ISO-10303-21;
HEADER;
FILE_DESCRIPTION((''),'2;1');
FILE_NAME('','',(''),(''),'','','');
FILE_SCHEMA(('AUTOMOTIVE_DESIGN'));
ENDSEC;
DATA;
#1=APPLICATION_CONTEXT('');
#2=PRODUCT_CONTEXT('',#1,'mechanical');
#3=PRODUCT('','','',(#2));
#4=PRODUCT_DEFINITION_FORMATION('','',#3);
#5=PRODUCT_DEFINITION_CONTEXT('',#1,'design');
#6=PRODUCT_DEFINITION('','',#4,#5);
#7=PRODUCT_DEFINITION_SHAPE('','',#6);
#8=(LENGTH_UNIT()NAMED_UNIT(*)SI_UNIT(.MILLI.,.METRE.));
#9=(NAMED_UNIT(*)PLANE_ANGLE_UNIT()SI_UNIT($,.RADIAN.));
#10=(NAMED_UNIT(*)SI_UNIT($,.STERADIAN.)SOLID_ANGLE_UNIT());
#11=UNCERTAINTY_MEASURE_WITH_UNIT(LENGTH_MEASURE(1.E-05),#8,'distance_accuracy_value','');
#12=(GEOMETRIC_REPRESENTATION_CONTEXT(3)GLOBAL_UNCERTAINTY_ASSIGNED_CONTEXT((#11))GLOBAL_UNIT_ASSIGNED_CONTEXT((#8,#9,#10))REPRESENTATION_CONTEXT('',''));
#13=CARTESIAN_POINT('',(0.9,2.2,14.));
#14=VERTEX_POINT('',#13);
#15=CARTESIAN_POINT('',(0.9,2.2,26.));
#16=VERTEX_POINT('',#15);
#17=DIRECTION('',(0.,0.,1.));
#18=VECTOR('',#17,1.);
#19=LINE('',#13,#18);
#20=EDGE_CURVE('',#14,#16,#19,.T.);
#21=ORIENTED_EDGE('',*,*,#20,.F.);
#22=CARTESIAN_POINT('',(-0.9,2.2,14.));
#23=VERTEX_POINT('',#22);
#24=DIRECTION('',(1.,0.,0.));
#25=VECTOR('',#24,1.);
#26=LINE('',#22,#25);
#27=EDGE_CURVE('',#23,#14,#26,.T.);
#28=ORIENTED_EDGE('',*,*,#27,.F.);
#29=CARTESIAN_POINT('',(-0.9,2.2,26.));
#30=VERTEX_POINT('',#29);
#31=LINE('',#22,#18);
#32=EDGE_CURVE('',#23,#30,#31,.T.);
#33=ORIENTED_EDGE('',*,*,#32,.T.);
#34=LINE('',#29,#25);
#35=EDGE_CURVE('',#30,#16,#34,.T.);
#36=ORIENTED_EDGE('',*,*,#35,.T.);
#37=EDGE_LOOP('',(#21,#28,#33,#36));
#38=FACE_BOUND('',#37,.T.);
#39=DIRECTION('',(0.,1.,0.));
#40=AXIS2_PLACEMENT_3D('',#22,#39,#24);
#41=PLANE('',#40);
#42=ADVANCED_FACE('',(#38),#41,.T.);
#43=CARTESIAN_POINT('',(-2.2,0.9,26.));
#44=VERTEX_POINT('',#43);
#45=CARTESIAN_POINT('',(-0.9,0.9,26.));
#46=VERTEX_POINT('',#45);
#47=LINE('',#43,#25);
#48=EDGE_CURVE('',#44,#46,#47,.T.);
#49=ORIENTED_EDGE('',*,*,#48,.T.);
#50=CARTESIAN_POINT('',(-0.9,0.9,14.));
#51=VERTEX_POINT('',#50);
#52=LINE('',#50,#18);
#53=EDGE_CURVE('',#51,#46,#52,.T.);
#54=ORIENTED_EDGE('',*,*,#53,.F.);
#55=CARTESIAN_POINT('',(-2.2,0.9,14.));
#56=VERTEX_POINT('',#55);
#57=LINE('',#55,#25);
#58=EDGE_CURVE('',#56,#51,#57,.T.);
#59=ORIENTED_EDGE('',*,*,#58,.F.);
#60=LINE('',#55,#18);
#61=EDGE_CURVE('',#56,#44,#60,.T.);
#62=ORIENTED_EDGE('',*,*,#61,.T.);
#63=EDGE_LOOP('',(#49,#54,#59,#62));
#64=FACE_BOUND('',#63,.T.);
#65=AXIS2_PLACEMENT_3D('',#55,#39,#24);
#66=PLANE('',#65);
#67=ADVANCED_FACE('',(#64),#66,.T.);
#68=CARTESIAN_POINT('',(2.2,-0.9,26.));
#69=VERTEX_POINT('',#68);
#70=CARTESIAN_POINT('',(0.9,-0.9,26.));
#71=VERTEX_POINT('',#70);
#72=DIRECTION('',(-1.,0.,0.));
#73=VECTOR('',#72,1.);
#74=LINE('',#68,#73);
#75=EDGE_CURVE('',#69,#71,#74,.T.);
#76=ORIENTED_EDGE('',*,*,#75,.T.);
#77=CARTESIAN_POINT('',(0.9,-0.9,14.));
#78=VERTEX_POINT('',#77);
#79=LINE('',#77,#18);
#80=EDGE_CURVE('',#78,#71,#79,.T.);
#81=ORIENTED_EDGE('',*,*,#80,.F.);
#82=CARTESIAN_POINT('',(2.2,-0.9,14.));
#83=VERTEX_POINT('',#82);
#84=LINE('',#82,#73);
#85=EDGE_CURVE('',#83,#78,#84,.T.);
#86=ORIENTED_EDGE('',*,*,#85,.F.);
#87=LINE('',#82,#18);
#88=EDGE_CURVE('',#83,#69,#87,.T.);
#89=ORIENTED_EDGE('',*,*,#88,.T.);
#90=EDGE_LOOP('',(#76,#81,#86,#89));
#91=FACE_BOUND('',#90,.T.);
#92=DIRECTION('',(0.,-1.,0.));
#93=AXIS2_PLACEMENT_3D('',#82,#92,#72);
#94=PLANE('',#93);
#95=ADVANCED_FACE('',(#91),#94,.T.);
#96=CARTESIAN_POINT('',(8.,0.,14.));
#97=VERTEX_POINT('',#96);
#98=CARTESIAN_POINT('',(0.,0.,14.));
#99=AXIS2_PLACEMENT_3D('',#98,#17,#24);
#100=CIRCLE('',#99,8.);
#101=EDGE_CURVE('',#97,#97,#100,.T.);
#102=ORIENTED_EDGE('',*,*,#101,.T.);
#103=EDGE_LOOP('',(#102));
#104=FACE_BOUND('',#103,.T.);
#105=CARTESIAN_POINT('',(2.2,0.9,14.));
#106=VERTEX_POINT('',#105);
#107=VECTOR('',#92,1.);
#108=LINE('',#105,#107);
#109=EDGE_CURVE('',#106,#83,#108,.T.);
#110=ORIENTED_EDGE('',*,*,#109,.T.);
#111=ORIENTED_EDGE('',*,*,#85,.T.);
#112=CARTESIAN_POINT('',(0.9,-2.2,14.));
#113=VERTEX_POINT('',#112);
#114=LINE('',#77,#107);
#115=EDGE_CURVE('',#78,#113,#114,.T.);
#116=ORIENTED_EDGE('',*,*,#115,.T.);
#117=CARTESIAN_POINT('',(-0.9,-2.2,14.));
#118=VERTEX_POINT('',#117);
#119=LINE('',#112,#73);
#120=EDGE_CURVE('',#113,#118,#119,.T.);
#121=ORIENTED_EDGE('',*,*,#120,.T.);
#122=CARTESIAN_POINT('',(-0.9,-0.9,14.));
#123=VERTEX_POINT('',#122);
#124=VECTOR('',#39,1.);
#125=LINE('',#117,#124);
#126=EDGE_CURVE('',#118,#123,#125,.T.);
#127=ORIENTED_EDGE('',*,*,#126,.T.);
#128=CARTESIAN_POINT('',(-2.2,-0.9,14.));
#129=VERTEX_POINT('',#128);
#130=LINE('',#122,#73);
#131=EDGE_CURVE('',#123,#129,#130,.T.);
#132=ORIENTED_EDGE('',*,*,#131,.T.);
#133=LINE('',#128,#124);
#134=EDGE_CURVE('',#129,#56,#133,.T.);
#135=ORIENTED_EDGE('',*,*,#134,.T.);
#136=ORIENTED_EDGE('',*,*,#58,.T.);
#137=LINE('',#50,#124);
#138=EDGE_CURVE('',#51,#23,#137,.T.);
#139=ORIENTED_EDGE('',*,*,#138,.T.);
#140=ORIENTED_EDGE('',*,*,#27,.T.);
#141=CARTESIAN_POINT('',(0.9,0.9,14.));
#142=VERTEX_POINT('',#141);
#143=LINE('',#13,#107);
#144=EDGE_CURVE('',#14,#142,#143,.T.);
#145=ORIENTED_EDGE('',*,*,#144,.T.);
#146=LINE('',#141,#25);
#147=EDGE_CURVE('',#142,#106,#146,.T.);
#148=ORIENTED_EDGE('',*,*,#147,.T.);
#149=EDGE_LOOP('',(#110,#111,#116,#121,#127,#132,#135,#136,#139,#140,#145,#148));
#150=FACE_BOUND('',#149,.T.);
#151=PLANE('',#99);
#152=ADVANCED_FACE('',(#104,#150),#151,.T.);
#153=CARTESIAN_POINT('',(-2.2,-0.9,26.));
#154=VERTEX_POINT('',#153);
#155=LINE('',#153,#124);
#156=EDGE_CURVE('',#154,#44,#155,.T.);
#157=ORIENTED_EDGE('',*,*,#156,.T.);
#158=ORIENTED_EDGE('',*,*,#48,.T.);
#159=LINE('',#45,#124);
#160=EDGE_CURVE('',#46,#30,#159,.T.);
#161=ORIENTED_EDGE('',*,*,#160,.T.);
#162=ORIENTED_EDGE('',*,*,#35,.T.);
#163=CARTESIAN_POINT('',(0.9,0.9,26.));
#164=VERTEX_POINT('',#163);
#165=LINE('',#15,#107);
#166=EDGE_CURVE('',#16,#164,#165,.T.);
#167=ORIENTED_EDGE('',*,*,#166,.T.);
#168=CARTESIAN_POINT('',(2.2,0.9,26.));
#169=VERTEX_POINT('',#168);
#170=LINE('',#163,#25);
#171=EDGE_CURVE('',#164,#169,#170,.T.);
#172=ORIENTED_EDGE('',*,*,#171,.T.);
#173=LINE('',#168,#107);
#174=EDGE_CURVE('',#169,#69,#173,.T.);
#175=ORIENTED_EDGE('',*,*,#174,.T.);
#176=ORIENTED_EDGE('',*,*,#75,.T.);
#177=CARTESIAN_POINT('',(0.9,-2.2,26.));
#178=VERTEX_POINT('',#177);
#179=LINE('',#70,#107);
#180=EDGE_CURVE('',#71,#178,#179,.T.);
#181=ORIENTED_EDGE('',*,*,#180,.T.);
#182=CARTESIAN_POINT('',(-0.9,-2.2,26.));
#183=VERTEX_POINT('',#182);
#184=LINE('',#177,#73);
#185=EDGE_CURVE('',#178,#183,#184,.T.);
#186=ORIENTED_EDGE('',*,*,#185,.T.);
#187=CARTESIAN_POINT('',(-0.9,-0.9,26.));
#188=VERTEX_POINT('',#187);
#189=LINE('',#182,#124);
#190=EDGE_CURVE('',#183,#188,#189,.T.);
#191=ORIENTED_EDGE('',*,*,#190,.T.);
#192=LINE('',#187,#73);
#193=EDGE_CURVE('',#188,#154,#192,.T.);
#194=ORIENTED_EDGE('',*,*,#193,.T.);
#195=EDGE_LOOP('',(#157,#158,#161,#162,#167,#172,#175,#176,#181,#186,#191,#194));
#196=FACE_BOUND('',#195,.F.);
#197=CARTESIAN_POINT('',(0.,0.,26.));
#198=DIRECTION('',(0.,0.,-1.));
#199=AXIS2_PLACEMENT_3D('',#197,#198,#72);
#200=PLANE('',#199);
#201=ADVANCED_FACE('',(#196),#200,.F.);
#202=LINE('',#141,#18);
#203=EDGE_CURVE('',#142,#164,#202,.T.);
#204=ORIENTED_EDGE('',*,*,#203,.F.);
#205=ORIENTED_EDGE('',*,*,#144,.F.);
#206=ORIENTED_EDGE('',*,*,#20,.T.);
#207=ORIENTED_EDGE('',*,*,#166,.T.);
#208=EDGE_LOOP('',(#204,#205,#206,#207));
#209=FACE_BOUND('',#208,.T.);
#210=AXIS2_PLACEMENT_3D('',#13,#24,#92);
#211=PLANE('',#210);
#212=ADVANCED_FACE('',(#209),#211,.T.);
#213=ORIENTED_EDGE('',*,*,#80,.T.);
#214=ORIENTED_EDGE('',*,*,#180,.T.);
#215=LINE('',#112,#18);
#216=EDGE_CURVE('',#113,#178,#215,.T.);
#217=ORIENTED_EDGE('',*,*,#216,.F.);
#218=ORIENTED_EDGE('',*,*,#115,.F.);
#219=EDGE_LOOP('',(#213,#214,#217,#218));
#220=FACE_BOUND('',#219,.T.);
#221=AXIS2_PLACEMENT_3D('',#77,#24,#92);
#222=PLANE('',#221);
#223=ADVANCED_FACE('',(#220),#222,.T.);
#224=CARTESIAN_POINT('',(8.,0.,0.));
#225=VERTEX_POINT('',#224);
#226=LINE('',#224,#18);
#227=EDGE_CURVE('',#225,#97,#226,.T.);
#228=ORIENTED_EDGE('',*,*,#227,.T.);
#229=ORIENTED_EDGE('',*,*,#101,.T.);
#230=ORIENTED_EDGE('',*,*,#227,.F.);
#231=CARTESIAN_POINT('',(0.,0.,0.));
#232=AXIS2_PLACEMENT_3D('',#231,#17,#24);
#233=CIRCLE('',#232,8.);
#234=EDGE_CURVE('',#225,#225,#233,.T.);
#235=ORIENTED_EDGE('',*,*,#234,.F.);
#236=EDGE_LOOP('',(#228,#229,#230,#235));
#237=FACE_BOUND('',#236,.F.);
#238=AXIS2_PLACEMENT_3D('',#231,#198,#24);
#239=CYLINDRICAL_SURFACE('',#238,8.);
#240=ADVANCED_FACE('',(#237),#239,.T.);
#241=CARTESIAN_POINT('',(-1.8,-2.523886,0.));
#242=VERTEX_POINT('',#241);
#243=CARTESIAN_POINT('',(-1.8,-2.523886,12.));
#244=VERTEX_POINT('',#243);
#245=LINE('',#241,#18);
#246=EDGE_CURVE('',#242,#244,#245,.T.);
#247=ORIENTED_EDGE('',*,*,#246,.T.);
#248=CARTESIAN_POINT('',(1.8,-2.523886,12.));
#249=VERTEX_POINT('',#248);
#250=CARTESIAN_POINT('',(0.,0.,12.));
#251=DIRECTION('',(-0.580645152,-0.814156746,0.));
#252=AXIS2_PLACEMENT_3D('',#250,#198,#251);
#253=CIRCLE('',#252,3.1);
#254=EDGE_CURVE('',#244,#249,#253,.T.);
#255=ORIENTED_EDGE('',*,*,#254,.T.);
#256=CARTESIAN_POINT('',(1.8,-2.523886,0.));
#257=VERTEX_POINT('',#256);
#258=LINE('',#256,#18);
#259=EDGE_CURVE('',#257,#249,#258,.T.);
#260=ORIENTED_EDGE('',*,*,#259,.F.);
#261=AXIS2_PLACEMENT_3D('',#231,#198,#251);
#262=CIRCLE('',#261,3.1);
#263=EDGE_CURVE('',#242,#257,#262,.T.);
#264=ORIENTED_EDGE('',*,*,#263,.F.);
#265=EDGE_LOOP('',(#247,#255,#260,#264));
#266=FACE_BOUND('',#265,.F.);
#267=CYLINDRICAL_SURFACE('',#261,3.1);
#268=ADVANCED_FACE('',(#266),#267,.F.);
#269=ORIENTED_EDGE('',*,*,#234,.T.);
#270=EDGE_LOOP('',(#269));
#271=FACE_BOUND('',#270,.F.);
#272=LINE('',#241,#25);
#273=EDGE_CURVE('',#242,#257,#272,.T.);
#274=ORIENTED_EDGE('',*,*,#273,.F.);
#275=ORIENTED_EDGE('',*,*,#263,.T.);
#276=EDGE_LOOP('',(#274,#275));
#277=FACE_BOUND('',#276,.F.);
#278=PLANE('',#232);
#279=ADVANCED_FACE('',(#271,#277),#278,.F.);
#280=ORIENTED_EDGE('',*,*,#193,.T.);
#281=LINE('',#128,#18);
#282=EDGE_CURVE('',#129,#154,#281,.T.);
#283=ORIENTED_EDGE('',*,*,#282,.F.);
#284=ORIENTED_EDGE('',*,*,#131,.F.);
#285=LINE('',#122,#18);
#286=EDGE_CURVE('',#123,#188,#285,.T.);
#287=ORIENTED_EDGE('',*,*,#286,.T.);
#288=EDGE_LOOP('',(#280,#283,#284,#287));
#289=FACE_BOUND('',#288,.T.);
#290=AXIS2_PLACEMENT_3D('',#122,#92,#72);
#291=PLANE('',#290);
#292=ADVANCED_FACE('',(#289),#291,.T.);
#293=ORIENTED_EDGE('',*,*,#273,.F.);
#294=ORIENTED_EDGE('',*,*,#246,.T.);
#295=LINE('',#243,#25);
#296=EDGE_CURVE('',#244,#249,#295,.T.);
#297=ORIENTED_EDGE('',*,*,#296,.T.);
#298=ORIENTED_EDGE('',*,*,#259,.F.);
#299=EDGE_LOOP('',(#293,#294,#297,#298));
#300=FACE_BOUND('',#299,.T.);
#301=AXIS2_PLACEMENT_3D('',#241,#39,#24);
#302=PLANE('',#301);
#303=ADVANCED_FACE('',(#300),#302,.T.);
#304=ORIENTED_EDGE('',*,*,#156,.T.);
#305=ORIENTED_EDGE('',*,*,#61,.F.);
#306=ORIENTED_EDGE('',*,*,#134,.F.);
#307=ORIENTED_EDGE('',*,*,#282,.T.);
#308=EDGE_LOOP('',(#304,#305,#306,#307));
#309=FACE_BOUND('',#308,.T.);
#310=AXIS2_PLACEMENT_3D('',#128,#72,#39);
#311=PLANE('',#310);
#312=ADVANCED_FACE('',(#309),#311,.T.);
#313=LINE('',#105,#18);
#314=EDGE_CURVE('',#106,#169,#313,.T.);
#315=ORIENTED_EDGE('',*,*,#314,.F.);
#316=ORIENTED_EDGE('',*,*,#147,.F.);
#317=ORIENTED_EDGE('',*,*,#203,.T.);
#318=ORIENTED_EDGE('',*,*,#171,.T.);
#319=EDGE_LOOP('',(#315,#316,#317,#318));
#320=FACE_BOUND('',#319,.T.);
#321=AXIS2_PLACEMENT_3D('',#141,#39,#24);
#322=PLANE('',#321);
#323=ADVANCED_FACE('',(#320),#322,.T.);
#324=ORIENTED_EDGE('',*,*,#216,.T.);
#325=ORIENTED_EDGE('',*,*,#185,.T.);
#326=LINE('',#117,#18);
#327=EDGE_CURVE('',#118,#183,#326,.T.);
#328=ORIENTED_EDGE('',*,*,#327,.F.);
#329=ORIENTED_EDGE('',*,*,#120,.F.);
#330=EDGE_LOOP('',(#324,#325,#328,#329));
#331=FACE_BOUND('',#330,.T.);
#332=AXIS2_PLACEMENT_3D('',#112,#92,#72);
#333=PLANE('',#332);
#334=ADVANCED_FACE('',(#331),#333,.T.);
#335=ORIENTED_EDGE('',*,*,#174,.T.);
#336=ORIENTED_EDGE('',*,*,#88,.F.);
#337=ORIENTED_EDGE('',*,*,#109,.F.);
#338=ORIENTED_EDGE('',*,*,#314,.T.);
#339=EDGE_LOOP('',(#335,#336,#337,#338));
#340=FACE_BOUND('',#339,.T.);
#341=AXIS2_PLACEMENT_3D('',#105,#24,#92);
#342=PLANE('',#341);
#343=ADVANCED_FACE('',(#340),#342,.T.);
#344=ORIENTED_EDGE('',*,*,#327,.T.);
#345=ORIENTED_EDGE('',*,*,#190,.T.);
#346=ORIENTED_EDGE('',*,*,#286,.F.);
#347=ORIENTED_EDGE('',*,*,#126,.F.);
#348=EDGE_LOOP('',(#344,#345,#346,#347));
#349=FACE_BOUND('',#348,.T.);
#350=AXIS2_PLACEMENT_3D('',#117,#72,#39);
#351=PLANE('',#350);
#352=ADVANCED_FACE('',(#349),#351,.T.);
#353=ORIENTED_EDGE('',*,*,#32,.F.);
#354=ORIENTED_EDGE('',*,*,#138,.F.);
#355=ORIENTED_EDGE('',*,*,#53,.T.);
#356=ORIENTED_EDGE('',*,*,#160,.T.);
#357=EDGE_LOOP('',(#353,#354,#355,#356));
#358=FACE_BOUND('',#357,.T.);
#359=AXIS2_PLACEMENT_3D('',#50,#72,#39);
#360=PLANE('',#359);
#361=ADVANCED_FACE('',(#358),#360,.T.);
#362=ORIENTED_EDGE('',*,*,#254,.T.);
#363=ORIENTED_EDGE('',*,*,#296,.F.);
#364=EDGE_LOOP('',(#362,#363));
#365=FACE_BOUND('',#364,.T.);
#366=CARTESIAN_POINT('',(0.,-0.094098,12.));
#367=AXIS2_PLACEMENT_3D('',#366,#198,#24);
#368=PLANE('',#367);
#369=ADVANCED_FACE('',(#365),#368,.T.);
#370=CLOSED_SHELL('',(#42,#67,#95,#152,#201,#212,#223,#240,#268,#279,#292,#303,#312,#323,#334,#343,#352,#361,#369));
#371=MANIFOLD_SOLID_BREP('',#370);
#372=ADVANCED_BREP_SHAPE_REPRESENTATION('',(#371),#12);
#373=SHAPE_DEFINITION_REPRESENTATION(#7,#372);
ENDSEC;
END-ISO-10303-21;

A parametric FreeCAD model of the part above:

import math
import FreeCAD as App
import Part
import Sketcher
from FreeCAD import Vector


def add_polygon(sketch, points):
    """Adds a closed chain of lines whose ends are joined by coincident constraints."""
    first, n = sketch.GeometryCount, len(points)
    for a, b in zip(points, points[1:] + points[:1]):
        sketch.addGeometry(Part.LineSegment(App.Vector(*a, 0), App.Vector(*b, 0)), False)
    for i in range(n):
        sketch.addConstraint(Sketcher.Constraint("Coincident", first + i, 2, first + (i + 1) % n, 1))

doc = App.newDocument("Part")
body = doc.addObject("PartDesign::Body", "Body")

# Sketch on XY plane
sketch1 = body.newObject("Sketcher::SketchObject", "Sketch")
sketch1.AttachmentSupport = (doc.getObject("XY_Plane"), [""])
sketch1.MapMode = "FlatFace"
sketch1.addGeometry(Part.Circle(Vector(0, 0, 0), Vector(0, 0, 1), 8), False)
sketch1.addConstraint([
    Sketcher.Constraint("Coincident", 0, 3, -1, 1),
    Sketcher.Constraint("Diameter", 0, 16.0),
])
pad1 = body.newObject("PartDesign::Pad", "Pad")
pad1.Profile = sketch1
pad1.Length = 14

# Sketch on XY plane
sketch2 = body.newObject("Sketcher::SketchObject", "Sketch001")
sketch2.AttachmentSupport = (doc.getObject("XY_Plane"), [""])
sketch2.MapMode = "FlatFace"
sketch2.AttachmentOffset = App.Placement(Vector(0, 0, 14), App.Rotation())
add_polygon(sketch2, [(0.9, 2.2), (-0.9, 2.2), (-0.9, 0.9), (-2.2, 0.9), (-2.2, -0.9), (-0.9, -0.9), (-0.9, -2.2), (0.9, -2.2), (0.9, -0.9), (2.2, -0.9), (2.2, 0.9), (0.9, 0.9)])  # lines 0-11
sketch2.addConstraint([
    Sketcher.Constraint("Horizontal", 0),
    Sketcher.Constraint("Vertical", 1),
    Sketcher.Constraint("Horizontal", 2),
    Sketcher.Constraint("Vertical", 3),
    Sketcher.Constraint("Horizontal", 4),
    Sketcher.Constraint("Vertical", 5),
    Sketcher.Constraint("Horizontal", 6),
    Sketcher.Constraint("Vertical", 7),
    Sketcher.Constraint("Horizontal", 8),
    Sketcher.Constraint("Vertical", 9),
    Sketcher.Constraint("Horizontal", 10),
    Sketcher.Constraint("Vertical", 11),
    Sketcher.Constraint("Symmetric", 0, 2, 6, 2, -1, 1),
    Sketcher.Constraint("Symmetric", 2, 2, 8, 2, -1, 1),
    Sketcher.Constraint("Symmetric", 4, 2, 10, 2, -1, 1),
    Sketcher.Constraint("Symmetric", 4, 2, 7, 2, -2),
    Sketcher.Constraint("Equal", 10, 1),
    Sketcher.Constraint("Equal", 6, 3),
    Sketcher.Constraint("DistanceX", 0, 2, 0, 1, 1.8),
    Sketcher.Constraint("DistanceX", 2, 2, 2, 1, 1.3),
])
pad2 = body.newObject("PartDesign::Pad", "Pad001")
pad2.Profile = sketch2
pad2.Length = 12

# Sketch on XY plane
sketch3 = body.newObject("Sketcher::SketchObject", "Sketch002")
sketch3.AttachmentSupport = (doc.getObject("XY_Plane"), [""])
sketch3.MapMode = "FlatFace"
sketch3.addGeometry([
    Part.ArcOfCircle(Part.Circle(Vector(0, 0, 0), Vector(0, 0, 1), 3.1), math.radians(-54.504068), math.radians(234.504068)),
    Part.LineSegment(Vector(1.8, -2.523886, 0), Vector(-1.8, -2.523886, 0)),
], False)
sketch3.addConstraint([
    Sketcher.Constraint("Coincident", 0, 1, 1, 1),
    Sketcher.Constraint("Coincident", 1, 2, 0, 2),
    Sketcher.Constraint("Horizontal", 1),
    Sketcher.Constraint("Coincident", 0, 3, -1, 1),
    Sketcher.Constraint("Radius", 0, 3.1),
    Sketcher.Constraint("DistanceX", 1, 2, 1, 1, 3.6),
])
pocket1 = body.newObject("PartDesign::Pocket", "Pocket")
pocket1.Profile = sketch3
pocket1.Length = 12
pocket1.Reversed = True

doc.recompute()
